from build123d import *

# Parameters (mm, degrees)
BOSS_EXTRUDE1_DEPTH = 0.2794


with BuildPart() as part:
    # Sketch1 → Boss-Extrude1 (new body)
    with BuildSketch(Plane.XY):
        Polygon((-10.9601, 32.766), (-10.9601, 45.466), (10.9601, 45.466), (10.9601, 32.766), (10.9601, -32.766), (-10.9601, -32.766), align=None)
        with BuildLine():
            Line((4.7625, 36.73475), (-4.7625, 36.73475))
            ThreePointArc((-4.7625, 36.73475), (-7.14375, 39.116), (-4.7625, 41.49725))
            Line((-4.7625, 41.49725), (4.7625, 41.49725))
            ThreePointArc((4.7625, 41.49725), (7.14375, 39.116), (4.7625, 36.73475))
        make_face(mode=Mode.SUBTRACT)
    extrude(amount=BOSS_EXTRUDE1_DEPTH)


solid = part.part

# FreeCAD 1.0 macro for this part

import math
import FreeCAD as App
import Part
import Sketcher
Q = App.Units.Quantity

doc = App.newDocument("Part")
body = doc.addObject("PartDesign::Body", "Body")

sketch1 = body.newObject("Sketcher::SketchObject", "Sketch")
sketch1.AttachmentSupport = (doc.getObject("XY_Plane"), [""])
sketch1.MapMode = "FlatFace"
sketch1.addGeometry([
    Part.LineSegment(App.Vector(-10.9601, 45.466, 0), App.Vector(-10.9601, -32.766, 0)),
    Part.LineSegment(App.Vector(-10.9601, -32.766, 0), App.Vector(10.9601, -32.766, 0)),
    Part.LineSegment(App.Vector(10.9601, -32.766, 0), App.Vector(10.9601, 45.466, 0)),
    Part.LineSegment(App.Vector(10.9601, 45.466, 0), App.Vector(-10.9601, 45.466, 0)),
    Part.LineSegment(App.Vector(4.7625, 36.73475, 0), App.Vector(-4.7625, 36.73475, 0)),
    Part.ArcOfCircle(Part.Circle(App.Vector(-4.7625, 39.116, 0), App.Vector(0, 0, 1), 2.38125), math.radians(90), math.radians(270)),
    Part.LineSegment(App.Vector(-4.7625, 41.49725, 0), App.Vector(4.7625, 41.49725, 0)),
    Part.ArcOfCircle(Part.Circle(App.Vector(4.7625, 39.116, 0), App.Vector(0, 0, 1), 2.38125), math.radians(-90), math.radians(90)),
], False)
sketch1.addConstraint([
    Sketcher.Constraint("Coincident", 0, 2, 1, 1),
    Sketcher.Constraint("Coincident", 1, 2, 2, 1),
    Sketcher.Constraint("Coincident", 2, 2, 3, 1),
    Sketcher.Constraint("Coincident", 3, 2, 0, 1),
    Sketcher.Constraint("Tangent", 4, 2, 5, 2),
    Sketcher.Constraint("Tangent", 5, 1, 6, 1),
    Sketcher.Constraint("Tangent", 6, 2, 7, 2),
    Sketcher.Constraint("Tangent", 7, 1, 4, 1),
    Sketcher.Constraint("Vertical", 0),
    Sketcher.Constraint("Horizontal", 1),
    Sketcher.Constraint("Vertical", 2),
    Sketcher.Constraint("Horizontal", 3),
    Sketcher.Constraint("Horizontal", 4),
    Sketcher.Constraint("Horizontal", 6),
    Sketcher.Constraint("Radius", 5, Q("0.09375 in")),
    Sketcher.Constraint("DistanceY", 0, 2, 0, 1, Q("3.08 in")),
    Sketcher.Constraint("DistanceX", 1, 1, 1, 2, Q("0.863 in")),
    Sketcher.Constraint("DistanceX", 4, 2, 4, 1, Q("0.375 in")),
    Sketcher.Constraint("DistanceY", -1, 1, 5, 3, Q("1.54 in")),
    Sketcher.Constraint("DistanceY", 0, 2, -1, 1, Q("1.29 in")),
    Sketcher.Constraint("DistanceX", 5, 3, -1, 1, Q("0.1875 in")),
    Sketcher.Constraint("DistanceX", 0, 2, 5, 3, Q("0.244 in")),
])
pad1 = body.newObject("PartDesign::Pad", "Pad")
pad1.Profile = sketch1
pad1.Length = Q("0.011 in")

doc.recompute()
